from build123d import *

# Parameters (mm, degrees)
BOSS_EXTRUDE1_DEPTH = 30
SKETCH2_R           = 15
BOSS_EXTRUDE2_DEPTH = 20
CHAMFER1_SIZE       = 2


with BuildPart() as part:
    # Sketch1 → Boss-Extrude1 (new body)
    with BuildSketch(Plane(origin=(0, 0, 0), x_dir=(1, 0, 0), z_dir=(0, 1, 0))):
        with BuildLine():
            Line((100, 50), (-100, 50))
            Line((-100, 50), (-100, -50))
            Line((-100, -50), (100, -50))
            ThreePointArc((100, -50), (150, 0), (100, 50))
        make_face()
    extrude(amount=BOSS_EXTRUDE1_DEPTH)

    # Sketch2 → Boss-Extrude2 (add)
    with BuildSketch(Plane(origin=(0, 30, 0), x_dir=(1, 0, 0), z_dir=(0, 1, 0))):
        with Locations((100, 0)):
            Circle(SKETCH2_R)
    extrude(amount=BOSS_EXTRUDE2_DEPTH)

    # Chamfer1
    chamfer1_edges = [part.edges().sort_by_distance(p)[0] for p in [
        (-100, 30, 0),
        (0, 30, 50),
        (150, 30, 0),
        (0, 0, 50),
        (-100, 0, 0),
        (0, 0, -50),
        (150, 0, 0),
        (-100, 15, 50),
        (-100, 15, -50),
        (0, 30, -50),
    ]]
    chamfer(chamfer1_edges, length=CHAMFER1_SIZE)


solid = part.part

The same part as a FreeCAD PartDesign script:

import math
import FreeCAD as App
import Part
import Sketcher
Q = App.Units.Quantity


def edges_at(feature, points):
    """Names of the edges that pass closest to the given points."""
    edges = feature.Shape.Edges
    near = lambda p: min(range(len(edges)), key=lambda i: edges[i].distToShape(Part.Vertex(*p))[0])
    return sorted({f"Edge{near(p) + 1}" for p in points})

doc = App.newDocument("Part")
body = doc.addObject("PartDesign::Body", "Body")

# Sketch on XZ plane
sketch1 = body.newObject("Sketcher::SketchObject", "Sketch")
sketch1.AttachmentSupport = (doc.getObject("XZ_Plane"), [""])
sketch1.MapMode = "FlatFace"
sketch1.addGeometry(Part.LineSegment(App.Vector(100, -50, 0), App.Vector(-100, -50, 0)), False)
sketch1.addGeometry(Part.LineSegment(App.Vector(-100, -50, 0), App.Vector(-100, 50, 0)), False)
sketch1.addGeometry(Part.LineSegment(App.Vector(-100, 50, 0), App.Vector(100, 50, 0)), False)
sketch1.addGeometry(Part.ArcOfCircle(Part.Circle(App.Vector(100, 0, 0), App.Vector(0, 0, 1), 50), math.radians(-90), math.radians(90)), False)
sketch1.addConstraint(Sketcher.Constraint("Coincident", 0, 2, 1, 1))
sketch1.addConstraint(Sketcher.Constraint("Coincident", 1, 2, 2, 1))
sketch1.addConstraint(Sketcher.Constraint("Tangent", 2, 2, 3, 2))
sketch1.addConstraint(Sketcher.Constraint("Tangent", 3, 1, 0, 1))
sketch1.addConstraint(Sketcher.Constraint("Horizontal", 0))
sketch1.addConstraint(Sketcher.Constraint("Vertical", 1))
sketch1.addConstraint(Sketcher.Constraint("Horizontal", 2))
sketch1.addConstraint(Sketcher.Constraint("Symmetric", 0, 2, 2, 2, -1, 1))
sketch1.addConstraint(Sketcher.Constraint("Radius", 3, Q("50 mm")))
sketch1.addConstraint(Sketcher.Constraint("DistanceX", 0, 2, 0, 1, Q("200 mm")))
pad1 = body.newObject("PartDesign::Pad", "Pad")
pad1.Profile = sketch1
pad1.Length = 30
pad1.Reversed = True

# Sketch on XZ plane
sketch2 = body.newObject("Sketcher::SketchObject", "Sketch001")
sketch2.AttachmentSupport = (doc.getObject("XZ_Plane"), [""])
sketch2.MapMode = "FlatFace"
sketch2.AttachmentOffset = App.Placement(App.Vector(0, 0, -30), App.Rotation())
sketch2.addGeometry(Part.Circle(App.Vector(100, 0, 0), App.Vector(0, 0, 1), 15), False)
sketch2.addConstraint(Sketcher.Constraint("PointOnObject", 0, 3, -1))
sketch2.addConstraint(Sketcher.Constraint("Diameter", 0, Q("30 mm")))
sketch2.addConstraint(Sketcher.Constraint("DistanceX", -1, 1, 0, 3, Q("100 mm")))
pad2 = body.newObject("PartDesign::Pad", "Pad001")
pad2.Profile = sketch2
pad2.Length = 20
pad2.Reversed = True
doc.recompute()

chamfer = body.newObject("PartDesign::Chamfer", "Chamfer")
chamfer.Base = (pad2, edges_at(pad2, [
    (-100, 30, 0),
    (0, 30, 50),
    (150, 30, 0),
    (0, 0, 50),
    (-100, 0, 0),
    (0, 0, -50),
    (150, 0, 0),
    (-100, 15, 50),
    (-100, 15, -50),
    (0, 30, -50),
]))
chamfer.Size = 2

doc.recompute()
